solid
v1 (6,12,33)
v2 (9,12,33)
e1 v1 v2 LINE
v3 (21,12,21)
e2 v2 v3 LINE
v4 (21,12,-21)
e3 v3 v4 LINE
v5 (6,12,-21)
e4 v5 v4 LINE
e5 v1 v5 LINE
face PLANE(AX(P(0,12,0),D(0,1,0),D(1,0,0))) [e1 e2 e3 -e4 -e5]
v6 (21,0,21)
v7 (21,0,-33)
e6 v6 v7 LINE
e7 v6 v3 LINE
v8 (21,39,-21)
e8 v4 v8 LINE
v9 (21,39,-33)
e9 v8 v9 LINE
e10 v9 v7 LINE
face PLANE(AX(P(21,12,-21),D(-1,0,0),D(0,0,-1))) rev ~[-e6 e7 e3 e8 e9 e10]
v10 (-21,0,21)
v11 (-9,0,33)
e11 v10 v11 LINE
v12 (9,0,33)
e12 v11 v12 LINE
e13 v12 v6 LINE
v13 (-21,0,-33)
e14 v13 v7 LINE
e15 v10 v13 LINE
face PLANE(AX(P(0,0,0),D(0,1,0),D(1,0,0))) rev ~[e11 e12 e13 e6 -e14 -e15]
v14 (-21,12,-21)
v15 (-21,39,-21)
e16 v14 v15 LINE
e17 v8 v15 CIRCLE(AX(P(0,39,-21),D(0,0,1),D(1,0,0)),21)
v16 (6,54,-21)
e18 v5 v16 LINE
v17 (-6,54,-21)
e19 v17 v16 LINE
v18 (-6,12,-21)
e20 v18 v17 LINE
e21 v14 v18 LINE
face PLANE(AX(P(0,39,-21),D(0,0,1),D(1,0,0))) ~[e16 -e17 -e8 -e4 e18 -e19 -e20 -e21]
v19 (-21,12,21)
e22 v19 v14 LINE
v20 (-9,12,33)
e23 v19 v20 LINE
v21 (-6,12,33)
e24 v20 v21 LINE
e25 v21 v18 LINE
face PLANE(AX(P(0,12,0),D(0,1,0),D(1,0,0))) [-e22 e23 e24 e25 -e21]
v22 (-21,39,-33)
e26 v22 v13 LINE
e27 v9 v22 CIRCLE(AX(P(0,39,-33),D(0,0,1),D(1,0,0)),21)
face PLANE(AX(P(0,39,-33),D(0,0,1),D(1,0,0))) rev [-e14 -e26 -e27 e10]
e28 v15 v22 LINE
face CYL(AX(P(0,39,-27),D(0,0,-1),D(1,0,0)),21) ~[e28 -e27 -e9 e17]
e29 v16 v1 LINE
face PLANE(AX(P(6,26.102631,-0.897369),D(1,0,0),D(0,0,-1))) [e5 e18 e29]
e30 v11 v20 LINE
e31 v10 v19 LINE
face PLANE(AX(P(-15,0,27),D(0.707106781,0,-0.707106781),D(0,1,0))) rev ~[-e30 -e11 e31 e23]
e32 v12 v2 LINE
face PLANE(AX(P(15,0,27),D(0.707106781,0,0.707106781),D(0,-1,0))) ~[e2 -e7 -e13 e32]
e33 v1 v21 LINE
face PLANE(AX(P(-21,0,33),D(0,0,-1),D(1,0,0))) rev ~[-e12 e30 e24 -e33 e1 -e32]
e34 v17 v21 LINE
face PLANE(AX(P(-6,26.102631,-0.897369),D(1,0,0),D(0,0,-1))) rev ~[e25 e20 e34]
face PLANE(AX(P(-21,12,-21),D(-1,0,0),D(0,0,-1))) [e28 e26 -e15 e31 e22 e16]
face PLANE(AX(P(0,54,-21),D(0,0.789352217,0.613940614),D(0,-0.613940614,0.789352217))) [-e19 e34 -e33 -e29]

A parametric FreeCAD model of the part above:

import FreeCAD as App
import Part
import Sketcher
Q = App.Units.Quantity


def edges_at(feature, points):
    """Names of the edges that pass closest to the given points."""
    edges = feature.Shape.Edges
    near = lambda p: min(range(len(edges)), key=lambda i: edges[i].distToShape(Part.Vertex(*p))[0])
    return sorted({f"Edge{near(p) + 1}" for p in points})


def add_polygon(sketch, points):
    """Adds a closed chain of lines whose ends are joined by coincident constraints."""
    first, n = sketch.GeometryCount, len(points)
    for a, b in zip(points, points[1:] + points[:1]):
        sketch.addGeometry(Part.LineSegment(App.Vector(*a, 0), App.Vector(*b, 0)), False)
    for i in range(n):
        sketch.addConstraint(Sketcher.Constraint("Coincident", first + i, 2, first + (i + 1) % n, 1))

doc = App.newDocument("Part")
body = doc.addObject("PartDesign::Body", "Body")

# Sketch on XZ plane
sketch1 = doc.addObject("Sketcher::SketchObject", "Sketch")
body.addObject(sketch1)
sketch1.AttachmentSupport = (doc.XZ_Plane, [""])
sketch1.MapMode = "FlatFace"
add_polygon(sketch1, [(-21, -33), (-21, 33), (21, 33), (21, -33)])  # lines 0-3
sketch1.addConstraint([
    Sketcher.Constraint("Vertical", 0),
    Sketcher.Constraint("Horizontal", 1),
    Sketcher.Constraint("Vertical", 2),
    Sketcher.Constraint("Horizontal", 3),
    Sketcher.Constraint("Symmetric", 0, 2, 2, 2, -1, 1),
    Sketcher.Constraint("DistanceX", 1, 1, 1, 2, Q("42 mm")),
    Sketcher.Constraint("DistanceY", 0, 1, 0, 2, Q("66 mm")),
])
pad1 = doc.addObject("PartDesign::Pad", "Pad")
body.addObject(pad1)
pad1.Profile = sketch1
pad1.Length = 12
pad1.Reversed = True
doc.recompute()

chamfer = doc.addObject("PartDesign::Chamfer", "Chamfer")
body.addObject(chamfer)
chamfer.Base = (pad1, edges_at(pad1, [(21, 6, 33), (-21, 6, 33)]))
chamfer.Size = 12

# Sketch on XZ plane
sketch2 = doc.addObject("Sketcher::SketchObject", "Sketch001")
body.addObject(sketch2)
sketch2.AttachmentSupport = (doc.XZ_Plane, [""])
sketch2.MapMode = "FlatFace"
sketch2.AttachmentOffset = App.Placement(App.Vector(0, 0, -12), App.Rotation())
add_polygon(sketch2, [(-21, -33), (-21, -21), (21, -21), (21, -33)])  # lines 0-3
sketch2.addConstraint([
    Sketcher.Constraint("Vertical", 0),
    Sketcher.Constraint("Horizontal", 1),
    Sketcher.Constraint("Vertical", 2),
    Sketcher.Constraint("Horizontal", 3),
    Sketcher.Constraint("DistanceX", 1, 1, 1, 2, Q("42 mm")),
    Sketcher.Constraint("DistanceY", 0, 1, 0, 2, Q("12 mm")),
    Sketcher.Constraint("DistanceX", 0, 2, -1, 1, Q("21 mm")),
    Sketcher.Constraint("DistanceY", 0, 2, -1, 1, Q("21 mm")),
])
pad2 = doc.addObject("PartDesign::Pad", "Pad001")
body.addObject(pad2)
pad2.Profile = sketch2
pad2.Length = 27
pad2.Reversed = True

# Sketch on XZ plane
sketch3 = doc.addObject("Sketcher::SketchObject", "Sketch002")
body.addObject(sketch3)
sketch3.AttachmentSupport = (doc.XZ_Plane, [""])
sketch3.MapMode = "FlatFace"
sketch3.AttachmentOffset = App.Placement(App.Vector(0, 0, -39), App.Rotation())
add_polygon(sketch3, [(0, -33), (0, -21), (21, -21), (21, -33)])  # lines 0-3
sketch3.addConstraint([
    Sketcher.Constraint("Vertical", 0),
    Sketcher.Constraint("Horizontal", 1),
    Sketcher.Constraint("Vertical", 2),
    Sketcher.Constraint("Horizontal", 3),
    Sketcher.Constraint("PointOnObject", 0, 2, -2),
    Sketcher.Constraint("DistanceX", 1, 1, 1, 2, Q("21 mm")),
    Sketcher.Constraint("DistanceY", 0, 1, 0, 2, Q("12 mm")),
    Sketcher.Constraint("DistanceY", 0, 2, -1, 1, Q("21 mm")),
])
revolution = doc.addObject("PartDesign::Revolution", "Revolution")
body.addObject(revolution)
revolution.Profile = sketch3
revolution.ReferenceAxis = (sketch3, ["V_Axis"])
revolution.Angle = 180

# Sketch on YZ plane
sketch4 = doc.addObject("Sketcher::SketchObject", "Sketch003")
body.addObject(sketch4)
sketch4.AttachmentSupport = (doc.YZ_Plane, [""])
sketch4.MapMode = "FlatFace"
add_polygon(sketch4, [(12, -21), (54, -21), (12, 33)])  # lines 0-2
sketch4.addConstraint([
    Sketcher.Constraint("Horizontal", 0),
    Sketcher.Constraint("Vertical", 2),
    Sketcher.Constraint("DistanceX", 0, 1, 0, 2, Q("42 mm")),
    Sketcher.Constraint("DistanceY", 2, 2, 2, 1, Q("54 mm")),
    Sketcher.Constraint("DistanceX", -1, 1, 0, 2, Q("54 mm")),
    Sketcher.Constraint("DistanceY", 0, 2, -1, 1, Q("21 mm")),
])
pad3 = doc.addObject("PartDesign::Pad", "Pad002")
body.addObject(pad3)
pad3.Profile = sketch4
pad3.Length = 12
pad3.Midplane = True

doc.recompute()
